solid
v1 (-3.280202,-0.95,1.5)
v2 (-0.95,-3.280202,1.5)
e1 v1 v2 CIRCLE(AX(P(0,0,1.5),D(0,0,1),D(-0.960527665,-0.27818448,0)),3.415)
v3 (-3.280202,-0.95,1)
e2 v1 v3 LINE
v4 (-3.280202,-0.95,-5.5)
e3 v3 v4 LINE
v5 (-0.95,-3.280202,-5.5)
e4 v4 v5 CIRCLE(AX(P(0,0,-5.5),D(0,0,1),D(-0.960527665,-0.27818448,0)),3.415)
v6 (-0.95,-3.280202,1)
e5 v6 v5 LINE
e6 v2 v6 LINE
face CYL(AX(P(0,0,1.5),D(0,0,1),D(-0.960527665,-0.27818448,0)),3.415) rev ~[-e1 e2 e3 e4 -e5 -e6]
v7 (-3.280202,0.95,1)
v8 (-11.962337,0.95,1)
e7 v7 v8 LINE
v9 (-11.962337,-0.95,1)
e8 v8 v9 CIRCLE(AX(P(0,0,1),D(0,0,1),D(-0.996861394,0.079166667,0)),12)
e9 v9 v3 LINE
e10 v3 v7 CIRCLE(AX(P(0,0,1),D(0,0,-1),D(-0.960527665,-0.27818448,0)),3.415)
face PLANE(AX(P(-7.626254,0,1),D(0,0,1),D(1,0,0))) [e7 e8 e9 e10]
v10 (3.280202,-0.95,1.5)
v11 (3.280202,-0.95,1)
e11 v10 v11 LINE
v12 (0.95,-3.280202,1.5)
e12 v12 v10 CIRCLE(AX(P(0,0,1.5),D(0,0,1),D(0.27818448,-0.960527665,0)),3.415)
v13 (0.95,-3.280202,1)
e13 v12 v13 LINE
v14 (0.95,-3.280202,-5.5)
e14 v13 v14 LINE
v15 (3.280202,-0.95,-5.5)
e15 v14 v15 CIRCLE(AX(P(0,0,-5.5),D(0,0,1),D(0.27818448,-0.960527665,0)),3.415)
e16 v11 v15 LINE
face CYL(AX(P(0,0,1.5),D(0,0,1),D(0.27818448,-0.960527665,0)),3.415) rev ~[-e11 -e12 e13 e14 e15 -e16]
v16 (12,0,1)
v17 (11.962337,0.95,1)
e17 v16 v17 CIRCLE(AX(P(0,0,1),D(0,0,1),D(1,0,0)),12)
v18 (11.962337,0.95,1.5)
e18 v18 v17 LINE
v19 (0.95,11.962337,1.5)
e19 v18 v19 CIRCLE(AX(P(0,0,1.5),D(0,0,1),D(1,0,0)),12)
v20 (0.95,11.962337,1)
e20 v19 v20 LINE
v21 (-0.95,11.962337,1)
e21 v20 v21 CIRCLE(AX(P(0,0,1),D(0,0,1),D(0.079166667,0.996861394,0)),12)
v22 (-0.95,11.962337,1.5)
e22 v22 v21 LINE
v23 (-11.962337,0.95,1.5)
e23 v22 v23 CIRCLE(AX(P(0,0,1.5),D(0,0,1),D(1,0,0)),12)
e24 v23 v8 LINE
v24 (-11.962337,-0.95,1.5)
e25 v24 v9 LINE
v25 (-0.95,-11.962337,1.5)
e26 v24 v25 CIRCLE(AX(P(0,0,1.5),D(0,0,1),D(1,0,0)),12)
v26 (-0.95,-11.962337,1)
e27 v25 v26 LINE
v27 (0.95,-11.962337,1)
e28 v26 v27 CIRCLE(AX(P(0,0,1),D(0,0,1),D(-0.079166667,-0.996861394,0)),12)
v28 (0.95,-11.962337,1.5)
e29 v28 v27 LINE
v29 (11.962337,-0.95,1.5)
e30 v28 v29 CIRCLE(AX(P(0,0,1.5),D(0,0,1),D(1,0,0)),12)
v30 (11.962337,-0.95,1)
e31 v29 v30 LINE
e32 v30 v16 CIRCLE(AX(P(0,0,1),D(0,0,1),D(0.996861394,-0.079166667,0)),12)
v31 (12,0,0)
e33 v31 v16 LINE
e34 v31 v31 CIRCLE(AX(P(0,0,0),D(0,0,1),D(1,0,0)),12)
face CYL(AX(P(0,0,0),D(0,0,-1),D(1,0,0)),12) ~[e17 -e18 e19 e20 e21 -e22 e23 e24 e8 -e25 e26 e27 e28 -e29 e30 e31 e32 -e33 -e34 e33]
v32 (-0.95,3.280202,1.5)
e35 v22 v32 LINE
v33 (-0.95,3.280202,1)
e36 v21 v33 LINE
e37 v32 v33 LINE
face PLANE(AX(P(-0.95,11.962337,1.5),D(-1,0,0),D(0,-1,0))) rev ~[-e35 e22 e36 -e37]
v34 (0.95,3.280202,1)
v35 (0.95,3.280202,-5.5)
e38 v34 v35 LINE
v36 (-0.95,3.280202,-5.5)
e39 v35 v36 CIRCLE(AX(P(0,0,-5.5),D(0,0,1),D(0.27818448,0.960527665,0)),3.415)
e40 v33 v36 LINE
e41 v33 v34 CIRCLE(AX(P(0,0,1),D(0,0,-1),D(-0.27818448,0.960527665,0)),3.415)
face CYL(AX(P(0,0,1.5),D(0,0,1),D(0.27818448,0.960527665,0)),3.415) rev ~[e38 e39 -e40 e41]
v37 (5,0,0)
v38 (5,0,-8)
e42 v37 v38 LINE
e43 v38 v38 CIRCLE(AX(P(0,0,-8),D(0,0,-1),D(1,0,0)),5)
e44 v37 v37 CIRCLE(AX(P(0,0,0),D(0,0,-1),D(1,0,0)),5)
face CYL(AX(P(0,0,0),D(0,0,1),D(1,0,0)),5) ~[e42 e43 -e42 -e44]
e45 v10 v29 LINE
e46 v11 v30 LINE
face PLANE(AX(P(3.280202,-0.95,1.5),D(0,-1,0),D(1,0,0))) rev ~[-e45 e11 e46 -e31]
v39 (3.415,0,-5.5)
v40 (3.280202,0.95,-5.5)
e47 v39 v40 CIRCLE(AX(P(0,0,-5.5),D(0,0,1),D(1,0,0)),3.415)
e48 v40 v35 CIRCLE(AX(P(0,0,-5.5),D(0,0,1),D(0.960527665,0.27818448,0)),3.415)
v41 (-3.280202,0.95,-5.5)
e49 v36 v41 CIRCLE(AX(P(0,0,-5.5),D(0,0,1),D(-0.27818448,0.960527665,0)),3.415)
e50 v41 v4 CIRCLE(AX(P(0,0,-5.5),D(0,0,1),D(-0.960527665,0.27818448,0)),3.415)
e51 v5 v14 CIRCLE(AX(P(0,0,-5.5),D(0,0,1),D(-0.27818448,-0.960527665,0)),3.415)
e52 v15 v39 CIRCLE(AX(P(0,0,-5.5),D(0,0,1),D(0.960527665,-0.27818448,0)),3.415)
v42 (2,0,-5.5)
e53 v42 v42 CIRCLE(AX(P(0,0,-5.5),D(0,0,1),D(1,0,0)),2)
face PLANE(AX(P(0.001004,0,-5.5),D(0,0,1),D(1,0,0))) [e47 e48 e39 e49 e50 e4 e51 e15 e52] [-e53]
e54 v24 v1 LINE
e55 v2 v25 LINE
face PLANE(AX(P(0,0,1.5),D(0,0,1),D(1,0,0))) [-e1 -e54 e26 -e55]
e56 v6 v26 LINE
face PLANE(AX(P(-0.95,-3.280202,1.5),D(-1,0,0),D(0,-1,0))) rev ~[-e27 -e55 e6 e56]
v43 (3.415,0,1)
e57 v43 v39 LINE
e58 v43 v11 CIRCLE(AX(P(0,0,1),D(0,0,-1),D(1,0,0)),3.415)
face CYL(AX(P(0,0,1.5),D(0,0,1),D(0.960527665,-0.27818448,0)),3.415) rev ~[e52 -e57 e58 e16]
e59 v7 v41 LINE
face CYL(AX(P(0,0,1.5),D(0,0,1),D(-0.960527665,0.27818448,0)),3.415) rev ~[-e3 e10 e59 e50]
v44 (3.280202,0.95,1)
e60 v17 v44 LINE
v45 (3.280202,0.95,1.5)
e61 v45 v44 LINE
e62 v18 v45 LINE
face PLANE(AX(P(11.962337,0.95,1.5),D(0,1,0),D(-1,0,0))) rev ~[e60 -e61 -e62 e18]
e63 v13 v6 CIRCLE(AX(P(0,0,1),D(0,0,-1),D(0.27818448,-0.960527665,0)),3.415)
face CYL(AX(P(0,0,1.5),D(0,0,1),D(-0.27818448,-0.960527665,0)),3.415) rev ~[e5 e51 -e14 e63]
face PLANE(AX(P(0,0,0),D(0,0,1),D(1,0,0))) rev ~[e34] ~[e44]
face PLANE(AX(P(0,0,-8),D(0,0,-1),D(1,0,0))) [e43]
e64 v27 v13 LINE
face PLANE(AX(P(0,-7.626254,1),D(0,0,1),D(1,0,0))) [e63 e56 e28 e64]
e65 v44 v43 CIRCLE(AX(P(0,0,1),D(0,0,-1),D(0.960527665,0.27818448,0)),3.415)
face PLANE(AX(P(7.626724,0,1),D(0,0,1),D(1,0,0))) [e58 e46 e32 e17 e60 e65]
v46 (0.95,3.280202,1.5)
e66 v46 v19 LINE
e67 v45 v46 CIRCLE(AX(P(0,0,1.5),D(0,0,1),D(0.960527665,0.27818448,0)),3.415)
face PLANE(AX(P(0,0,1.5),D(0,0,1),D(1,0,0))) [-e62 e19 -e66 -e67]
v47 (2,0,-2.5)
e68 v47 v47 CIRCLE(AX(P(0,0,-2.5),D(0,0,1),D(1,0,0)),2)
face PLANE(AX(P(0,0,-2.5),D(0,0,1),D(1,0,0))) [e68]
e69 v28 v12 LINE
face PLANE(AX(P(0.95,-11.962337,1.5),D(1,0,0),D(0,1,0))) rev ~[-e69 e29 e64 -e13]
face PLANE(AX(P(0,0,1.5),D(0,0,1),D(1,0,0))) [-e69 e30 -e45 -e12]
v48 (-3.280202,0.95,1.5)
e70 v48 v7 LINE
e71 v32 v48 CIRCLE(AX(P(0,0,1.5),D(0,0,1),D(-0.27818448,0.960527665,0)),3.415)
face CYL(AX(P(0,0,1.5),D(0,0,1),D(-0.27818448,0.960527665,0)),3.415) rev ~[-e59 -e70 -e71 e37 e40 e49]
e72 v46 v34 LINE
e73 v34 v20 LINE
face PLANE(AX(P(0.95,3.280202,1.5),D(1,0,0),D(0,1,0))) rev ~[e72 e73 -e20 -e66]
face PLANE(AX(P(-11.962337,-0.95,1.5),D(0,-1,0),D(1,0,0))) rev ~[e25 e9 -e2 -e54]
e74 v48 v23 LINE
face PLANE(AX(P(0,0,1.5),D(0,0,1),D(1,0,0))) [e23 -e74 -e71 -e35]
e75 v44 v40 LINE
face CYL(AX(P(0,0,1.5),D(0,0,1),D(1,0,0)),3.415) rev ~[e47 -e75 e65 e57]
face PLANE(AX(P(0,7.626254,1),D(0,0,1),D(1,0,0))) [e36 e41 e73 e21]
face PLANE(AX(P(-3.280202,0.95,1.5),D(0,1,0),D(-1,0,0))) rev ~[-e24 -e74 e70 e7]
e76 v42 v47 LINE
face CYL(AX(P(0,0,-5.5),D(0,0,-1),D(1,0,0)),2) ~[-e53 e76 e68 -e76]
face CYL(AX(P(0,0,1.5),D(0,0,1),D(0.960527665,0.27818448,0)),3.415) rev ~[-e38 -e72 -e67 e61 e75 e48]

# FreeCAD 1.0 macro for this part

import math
import FreeCAD as App
import Part
import Sketcher
Q = App.Units.Quantity

doc = App.newDocument("Part")
body = doc.addObject("PartDesign::Body", "Body")

# Sketch on XY plane
sketch1 = body.newObject("Sketcher::SketchObject", "Sketch")
sketch1.AttachmentSupport = (doc.getObject("XY_Plane"), [""])
sketch1.MapMode = "FlatFace"
sketch1.addGeometry(Part.Circle(App.Vector(0, 0, 0), App.Vector(0, 0, 1), 12), False)
sketch1.addConstraint([
    Sketcher.Constraint("Coincident", 0, 3, -1, 1),
    Sketcher.Constraint("Diameter", 0, Q("24 mm")),
])
pad1 = body.newObject("PartDesign::Pad", "Pad")
pad1.Profile = sketch1
pad1.Length = 1.5

# Sketch on XY plane
sketch2 = body.newObject("Sketcher::SketchObject", "Sketch001")
sketch2.AttachmentSupport = (doc.getObject("XY_Plane"), [""])
sketch2.MapMode = "FlatFace"
sketch2.addGeometry(Part.Circle(App.Vector(0, 0, 0), App.Vector(0, 0, 1), 5), False)
sketch2.addConstraint([
    Sketcher.Constraint("Coincident", 0, 3, -1, 1),
    Sketcher.Constraint("Diameter", 0, Q("10 mm")),
])
pad2 = body.newObject("PartDesign::Pad", "Pad001")
pad2.Profile = sketch2
pad2.Length = 8
pad2.Reversed = True

# Sketch on XY plane
sketch3 = body.newObject("Sketcher::SketchObject", "Sketch002")
sketch3.AttachmentSupport = (doc.getObject("XY_Plane"), [""])
sketch3.MapMode = "FlatFace"
sketch3.AttachmentOffset = App.Placement(App.Vector(0, 0, 1.5), App.Rotation())
sketch3.addGeometry([
    Part.ArcOfCircle(Part.Circle(App.Vector(0, 0, 0), App.Vector(0, 0, 1), 3.4), math.radians(74), math.radians(106)),  # 0
    Part.LineSegment(App.Vector(0.9, 3.3, 0), App.Vector(0.9, 12, 0)),  # 1
    Part.ArcOfCircle(Part.Circle(App.Vector(0, 0, 0), App.Vector(0, 0, 1), 12), math.radians(85.46), math.radians(94.54)),  # 2
    Part.LineSegment(App.Vector(-0.9, 12, 0), App.Vector(-0.9, 3.3, 0)),  # 3
    Part.ArcOfCircle(Part.Circle(App.Vector(0, 0, 0), App.Vector(0, 0, 1), 3.4), math.radians(164), math.radians(196)),  # 4
    Part.LineSegment(App.Vector(-3.3, 0.9, 0), App.Vector(-12, 0.9, 0)),  # 5
    Part.ArcOfCircle(Part.Circle(App.Vector(0, 0, 0), App.Vector(0, 0, 1), 12), math.radians(175.46), math.radians(184.54)),  # 6
    Part.LineSegment(App.Vector(-12, -0.9, 0), App.Vector(-3.3, -0.9, 0)),  # 7
    Part.LineSegment(App.Vector(0.9, -12, 0), App.Vector(0.9, -3.3, 0)),  # 8
    Part.ArcOfCircle(Part.Circle(App.Vector(0, 0, 0), App.Vector(0, 0, 1), 3.4), math.radians(-106), math.radians(-74)),  # 9
    Part.LineSegment(App.Vector(-0.9, -3.3, 0), App.Vector(-0.9, -12, 0)),  # 10
    Part.ArcOfCircle(Part.Circle(App.Vector(0, 0, 0), App.Vector(0, 0, 1), 12), math.radians(-94.54), math.radians(-85.46)),  # 11
    Part.ArcOfCircle(Part.Circle(App.Vector(0, 0, 0), App.Vector(0, 0, 1), 3.4), math.radians(0), math.radians(16.15)),  # 12
    Part.ArcOfCircle(Part.Circle(App.Vector(0, 0, 0), App.Vector(0, 0, 1), 3.4), math.radians(-16.15), math.radians(0)),  # 13
    Part.LineSegment(App.Vector(3.3, -0.9, 0), App.Vector(12, -0.9, 0)),  # 14
    Part.ArcOfCircle(Part.Circle(App.Vector(0, 0, 0), App.Vector(0, 0, 1), 12), math.radians(-4.54), math.radians(0)),  # 15
    Part.ArcOfCircle(Part.Circle(App.Vector(0, 0, 0), App.Vector(0, 0, 1), 12), math.radians(0), math.radians(4.54)),  # 16
    Part.LineSegment(App.Vector(12, 0.9, 0), App.Vector(3.3, 0.9, 0)),  # 17
], False)
sketch3.addConstraint([
    Sketcher.Constraint("Coincident", 0, 1, 1, 1),
    Sketcher.Constraint("Coincident", 1, 2, 2, 1),
    Sketcher.Constraint("Coincident", 2, 2, 3, 1),
    Sketcher.Constraint("Coincident", 3, 2, 0, 2),
    Sketcher.Constraint("Coincident", 4, 1, 5, 1),
    Sketcher.Constraint("Coincident", 5, 2, 6, 1),
    Sketcher.Constraint("Coincident", 6, 2, 7, 1),
    Sketcher.Constraint("Coincident", 7, 2, 4, 2),
    Sketcher.Constraint("Coincident", 8, 2, 9, 2),
    Sketcher.Constraint("Coincident", 9, 1, 10, 1),
    Sketcher.Constraint("Coincident", 10, 2, 11, 1),
    Sketcher.Constraint("Coincident", 11, 2, 8, 1),
    Sketcher.Constraint("Tangent", 12, 1, 13, 2),
    Sketcher.Constraint("Coincident", 13, 1, 14, 1),
    Sketcher.Constraint("Coincident", 14, 2, 15, 1),
    Sketcher.Constraint("Tangent", 15, 2, 16, 1),
    Sketcher.Constraint("Coincident", 16, 2, 17, 1),
    Sketcher.Constraint("Coincident", 17, 2, 12, 2),
    Sketcher.Constraint("Vertical", 1),
    Sketcher.Constraint("Vertical", 3),
    Sketcher.Constraint("Horizontal", 5),
    Sketcher.Constraint("Horizontal", 7),
    Sketcher.Constraint("Vertical", 8),
    Sketcher.Constraint("Vertical", 10),
    Sketcher.Constraint("Horizontal", 14),
    Sketcher.Constraint("Horizontal", 17),
    Sketcher.Constraint("Coincident", 0, 3, -1, 1),
    Sketcher.Constraint("Coincident", 2, 3, -1, 1),
    Sketcher.Constraint("Coincident", 4, 3, -1, 1),
    Sketcher.Constraint("Coincident", 6, 3, -1, 1),
    Sketcher.Constraint("Coincident", 9, 3, -1, 1),
    Sketcher.Constraint("Coincident", 11, 3, -1, 1),
    Sketcher.Constraint("Coincident", 12, 3, -1, 1),
    Sketcher.Constraint("Coincident", 15, 3, -1, 1),
    Sketcher.Constraint("Equal", 0, 4),
    Sketcher.Constraint("Equal", 2, 6),
    Sketcher.Constraint("Equal", 4, 9),
    Sketcher.Constraint("Equal", 6, 11),
    Sketcher.Constraint("Equal", 9, 12),
    Sketcher.Constraint("Equal", 12, 13),
    Sketcher.Constraint("Equal", 11, 15),
    Sketcher.Constraint("Equal", 15, 16),
    Sketcher.Constraint("PointOnObject", 12, 1, -1),
    Sketcher.Constraint("PointOnObject", 15, 2, -1),
    Sketcher.Constraint("Horizontal", 1, 2, 2, 2),
    Sketcher.Constraint("Horizontal", 8, 2, 9, 1),
    Sketcher.Constraint("Horizontal", 7, 2, 13, 1),
    Sketcher.Constraint("Horizontal", 5, 2, 16, 2),
    Sketcher.Constraint("Vertical", 5, 2, 6, 2),
    Sketcher.Constraint("Vertical", 1, 2, 8, 2),
    Sketcher.Constraint("Equal", 17, 1),
    Sketcher.Constraint("Radius", 2, Q("12 mm")),
    Sketcher.Constraint("Radius", 0, Q("3.415 mm")),
    Sketcher.Constraint("DistanceX", 2, 2, 1, 2, Q("1.9 mm")),
])
pocket1 = body.newObject("PartDesign::Pocket", "Pocket")
pocket1.Profile = sketch3
pocket1.Length = 0.5

# Sketch on XY plane
sketch4 = body.newObject("Sketcher::SketchObject", "Sketch003")
sketch4.AttachmentSupport = (doc.getObject("XY_Plane"), [""])
sketch4.MapMode = "FlatFace"
sketch4.AttachmentOffset = App.Placement(App.Vector(0, 0, 1.5), App.Rotation())
sketch4.addGeometry([
    Part.ArcOfCircle(Part.Circle(App.Vector(0, 0, 0), App.Vector(0, 0, 1), 3.4), math.radians(-16.15), math.radians(0)),  # 0
    Part.ArcOfCircle(Part.Circle(App.Vector(0, 0, 0), App.Vector(0, 0, 1), 3.4), math.radians(0), math.radians(16.15)),  # 1
    Part.ArcOfCircle(Part.Circle(App.Vector(0, 0, 0), App.Vector(0, 0, 1), 3.4), math.radians(16), math.radians(74)),  # 2
    Part.ArcOfCircle(Part.Circle(App.Vector(0, 0, 0), App.Vector(0, 0, 1), 3.4), math.radians(74), math.radians(106)),  # 3
    Part.ArcOfCircle(Part.Circle(App.Vector(0, 0, 0), App.Vector(0, 0, 1), 3.4), math.radians(106), math.radians(164)),  # 4
    Part.ArcOfCircle(Part.Circle(App.Vector(0, 0, 0), App.Vector(0, 0, 1), 3.4), math.radians(164), math.radians(196)),  # 5
    Part.ArcOfCircle(Part.Circle(App.Vector(0, 0, 0), App.Vector(0, 0, 1), 3.4), math.radians(-164), math.radians(-106)),  # 6
    Part.ArcOfCircle(Part.Circle(App.Vector(0, 0, 0), App.Vector(0, 0, 1), 3.4), math.radians(-106), math.radians(-74)),  # 7
    Part.ArcOfCircle(Part.Circle(App.Vector(0, 0, 0), App.Vector(0, 0, 1), 3.4), math.radians(-74), math.radians(-16)),  # 8
], False)
sketch4.addConstraint([
    Sketcher.Constraint("Tangent", 0, 2, 1, 1),
    Sketcher.Constraint("Tangent", 1, 2, 2, 1),
    Sketcher.Constraint("Tangent", 2, 2, 3, 1),
    Sketcher.Constraint("Tangent", 3, 2, 4, 1),
    Sketcher.Constraint("Tangent", 4, 2, 5, 1),
    Sketcher.Constraint("Tangent", 5, 2, 6, 1),
    Sketcher.Constraint("Tangent", 6, 2, 7, 1),
    Sketcher.Constraint("Tangent", 7, 2, 8, 1),
    Sketcher.Constraint("Tangent", 8, 2, 0, 1),
    Sketcher.Constraint("Coincident", 0, 3, -1, 1),
    Sketcher.Constraint("Coincident", 2, 3, -1, 1),
    Sketcher.Constraint("Coincident", 4, 3, -1, 1),
    Sketcher.Constraint("Coincident", 6, 3, -1, 1),
    Sketcher.Constraint("PointOnObject", 0, 2, -1),
    Sketcher.Constraint("Horizontal", 2, 2, 3, 2),
    Sketcher.Constraint("Horizontal", 1, 2, 4, 2),
    Sketcher.Constraint("Horizontal", 6, 2, 7, 2),
    Sketcher.Constraint("Horizontal", 5, 2, 8, 2),
    Sketcher.Constraint("Vertical", 4, 2, 5, 2),
    Sketcher.Constraint("Vertical", 3, 2, 6, 2),
    Sketcher.Constraint("Radius", 0, Q("3.415 mm")),
    Sketcher.Constraint("DistanceX", 3, 2, 2, 2, Q("1.9 mm")),
    Sketcher.Constraint("DistanceY", 5, 2, 4, 2, Q("1.9 mm")),
])
pocket2 = body.newObject("PartDesign::Pocket", "Pocket001")
pocket2.Profile = sketch4
pocket2.Length = 7

# Sketch on XY plane
sketch5 = body.newObject("Sketcher::SketchObject", "Sketch004")
sketch5.AttachmentSupport = (doc.getObject("XY_Plane"), [""])
sketch5.MapMode = "FlatFace"
sketch5.AttachmentOffset = App.Placement(App.Vector(0, 0, -5.5), App.Rotation())
sketch5.addGeometry(Part.Circle(App.Vector(0, 0, 0), App.Vector(0, 0, 1), 2), False)
sketch5.addConstraint([
    Sketcher.Constraint("Coincident", 0, 3, -1, 1),
    Sketcher.Constraint("Diameter", 0, Q("4 mm")),
])
pad3 = body.newObject("PartDesign::Pad", "Pad002")
pad3.Profile = sketch5
pad3.Length = 3

doc.recompute()
